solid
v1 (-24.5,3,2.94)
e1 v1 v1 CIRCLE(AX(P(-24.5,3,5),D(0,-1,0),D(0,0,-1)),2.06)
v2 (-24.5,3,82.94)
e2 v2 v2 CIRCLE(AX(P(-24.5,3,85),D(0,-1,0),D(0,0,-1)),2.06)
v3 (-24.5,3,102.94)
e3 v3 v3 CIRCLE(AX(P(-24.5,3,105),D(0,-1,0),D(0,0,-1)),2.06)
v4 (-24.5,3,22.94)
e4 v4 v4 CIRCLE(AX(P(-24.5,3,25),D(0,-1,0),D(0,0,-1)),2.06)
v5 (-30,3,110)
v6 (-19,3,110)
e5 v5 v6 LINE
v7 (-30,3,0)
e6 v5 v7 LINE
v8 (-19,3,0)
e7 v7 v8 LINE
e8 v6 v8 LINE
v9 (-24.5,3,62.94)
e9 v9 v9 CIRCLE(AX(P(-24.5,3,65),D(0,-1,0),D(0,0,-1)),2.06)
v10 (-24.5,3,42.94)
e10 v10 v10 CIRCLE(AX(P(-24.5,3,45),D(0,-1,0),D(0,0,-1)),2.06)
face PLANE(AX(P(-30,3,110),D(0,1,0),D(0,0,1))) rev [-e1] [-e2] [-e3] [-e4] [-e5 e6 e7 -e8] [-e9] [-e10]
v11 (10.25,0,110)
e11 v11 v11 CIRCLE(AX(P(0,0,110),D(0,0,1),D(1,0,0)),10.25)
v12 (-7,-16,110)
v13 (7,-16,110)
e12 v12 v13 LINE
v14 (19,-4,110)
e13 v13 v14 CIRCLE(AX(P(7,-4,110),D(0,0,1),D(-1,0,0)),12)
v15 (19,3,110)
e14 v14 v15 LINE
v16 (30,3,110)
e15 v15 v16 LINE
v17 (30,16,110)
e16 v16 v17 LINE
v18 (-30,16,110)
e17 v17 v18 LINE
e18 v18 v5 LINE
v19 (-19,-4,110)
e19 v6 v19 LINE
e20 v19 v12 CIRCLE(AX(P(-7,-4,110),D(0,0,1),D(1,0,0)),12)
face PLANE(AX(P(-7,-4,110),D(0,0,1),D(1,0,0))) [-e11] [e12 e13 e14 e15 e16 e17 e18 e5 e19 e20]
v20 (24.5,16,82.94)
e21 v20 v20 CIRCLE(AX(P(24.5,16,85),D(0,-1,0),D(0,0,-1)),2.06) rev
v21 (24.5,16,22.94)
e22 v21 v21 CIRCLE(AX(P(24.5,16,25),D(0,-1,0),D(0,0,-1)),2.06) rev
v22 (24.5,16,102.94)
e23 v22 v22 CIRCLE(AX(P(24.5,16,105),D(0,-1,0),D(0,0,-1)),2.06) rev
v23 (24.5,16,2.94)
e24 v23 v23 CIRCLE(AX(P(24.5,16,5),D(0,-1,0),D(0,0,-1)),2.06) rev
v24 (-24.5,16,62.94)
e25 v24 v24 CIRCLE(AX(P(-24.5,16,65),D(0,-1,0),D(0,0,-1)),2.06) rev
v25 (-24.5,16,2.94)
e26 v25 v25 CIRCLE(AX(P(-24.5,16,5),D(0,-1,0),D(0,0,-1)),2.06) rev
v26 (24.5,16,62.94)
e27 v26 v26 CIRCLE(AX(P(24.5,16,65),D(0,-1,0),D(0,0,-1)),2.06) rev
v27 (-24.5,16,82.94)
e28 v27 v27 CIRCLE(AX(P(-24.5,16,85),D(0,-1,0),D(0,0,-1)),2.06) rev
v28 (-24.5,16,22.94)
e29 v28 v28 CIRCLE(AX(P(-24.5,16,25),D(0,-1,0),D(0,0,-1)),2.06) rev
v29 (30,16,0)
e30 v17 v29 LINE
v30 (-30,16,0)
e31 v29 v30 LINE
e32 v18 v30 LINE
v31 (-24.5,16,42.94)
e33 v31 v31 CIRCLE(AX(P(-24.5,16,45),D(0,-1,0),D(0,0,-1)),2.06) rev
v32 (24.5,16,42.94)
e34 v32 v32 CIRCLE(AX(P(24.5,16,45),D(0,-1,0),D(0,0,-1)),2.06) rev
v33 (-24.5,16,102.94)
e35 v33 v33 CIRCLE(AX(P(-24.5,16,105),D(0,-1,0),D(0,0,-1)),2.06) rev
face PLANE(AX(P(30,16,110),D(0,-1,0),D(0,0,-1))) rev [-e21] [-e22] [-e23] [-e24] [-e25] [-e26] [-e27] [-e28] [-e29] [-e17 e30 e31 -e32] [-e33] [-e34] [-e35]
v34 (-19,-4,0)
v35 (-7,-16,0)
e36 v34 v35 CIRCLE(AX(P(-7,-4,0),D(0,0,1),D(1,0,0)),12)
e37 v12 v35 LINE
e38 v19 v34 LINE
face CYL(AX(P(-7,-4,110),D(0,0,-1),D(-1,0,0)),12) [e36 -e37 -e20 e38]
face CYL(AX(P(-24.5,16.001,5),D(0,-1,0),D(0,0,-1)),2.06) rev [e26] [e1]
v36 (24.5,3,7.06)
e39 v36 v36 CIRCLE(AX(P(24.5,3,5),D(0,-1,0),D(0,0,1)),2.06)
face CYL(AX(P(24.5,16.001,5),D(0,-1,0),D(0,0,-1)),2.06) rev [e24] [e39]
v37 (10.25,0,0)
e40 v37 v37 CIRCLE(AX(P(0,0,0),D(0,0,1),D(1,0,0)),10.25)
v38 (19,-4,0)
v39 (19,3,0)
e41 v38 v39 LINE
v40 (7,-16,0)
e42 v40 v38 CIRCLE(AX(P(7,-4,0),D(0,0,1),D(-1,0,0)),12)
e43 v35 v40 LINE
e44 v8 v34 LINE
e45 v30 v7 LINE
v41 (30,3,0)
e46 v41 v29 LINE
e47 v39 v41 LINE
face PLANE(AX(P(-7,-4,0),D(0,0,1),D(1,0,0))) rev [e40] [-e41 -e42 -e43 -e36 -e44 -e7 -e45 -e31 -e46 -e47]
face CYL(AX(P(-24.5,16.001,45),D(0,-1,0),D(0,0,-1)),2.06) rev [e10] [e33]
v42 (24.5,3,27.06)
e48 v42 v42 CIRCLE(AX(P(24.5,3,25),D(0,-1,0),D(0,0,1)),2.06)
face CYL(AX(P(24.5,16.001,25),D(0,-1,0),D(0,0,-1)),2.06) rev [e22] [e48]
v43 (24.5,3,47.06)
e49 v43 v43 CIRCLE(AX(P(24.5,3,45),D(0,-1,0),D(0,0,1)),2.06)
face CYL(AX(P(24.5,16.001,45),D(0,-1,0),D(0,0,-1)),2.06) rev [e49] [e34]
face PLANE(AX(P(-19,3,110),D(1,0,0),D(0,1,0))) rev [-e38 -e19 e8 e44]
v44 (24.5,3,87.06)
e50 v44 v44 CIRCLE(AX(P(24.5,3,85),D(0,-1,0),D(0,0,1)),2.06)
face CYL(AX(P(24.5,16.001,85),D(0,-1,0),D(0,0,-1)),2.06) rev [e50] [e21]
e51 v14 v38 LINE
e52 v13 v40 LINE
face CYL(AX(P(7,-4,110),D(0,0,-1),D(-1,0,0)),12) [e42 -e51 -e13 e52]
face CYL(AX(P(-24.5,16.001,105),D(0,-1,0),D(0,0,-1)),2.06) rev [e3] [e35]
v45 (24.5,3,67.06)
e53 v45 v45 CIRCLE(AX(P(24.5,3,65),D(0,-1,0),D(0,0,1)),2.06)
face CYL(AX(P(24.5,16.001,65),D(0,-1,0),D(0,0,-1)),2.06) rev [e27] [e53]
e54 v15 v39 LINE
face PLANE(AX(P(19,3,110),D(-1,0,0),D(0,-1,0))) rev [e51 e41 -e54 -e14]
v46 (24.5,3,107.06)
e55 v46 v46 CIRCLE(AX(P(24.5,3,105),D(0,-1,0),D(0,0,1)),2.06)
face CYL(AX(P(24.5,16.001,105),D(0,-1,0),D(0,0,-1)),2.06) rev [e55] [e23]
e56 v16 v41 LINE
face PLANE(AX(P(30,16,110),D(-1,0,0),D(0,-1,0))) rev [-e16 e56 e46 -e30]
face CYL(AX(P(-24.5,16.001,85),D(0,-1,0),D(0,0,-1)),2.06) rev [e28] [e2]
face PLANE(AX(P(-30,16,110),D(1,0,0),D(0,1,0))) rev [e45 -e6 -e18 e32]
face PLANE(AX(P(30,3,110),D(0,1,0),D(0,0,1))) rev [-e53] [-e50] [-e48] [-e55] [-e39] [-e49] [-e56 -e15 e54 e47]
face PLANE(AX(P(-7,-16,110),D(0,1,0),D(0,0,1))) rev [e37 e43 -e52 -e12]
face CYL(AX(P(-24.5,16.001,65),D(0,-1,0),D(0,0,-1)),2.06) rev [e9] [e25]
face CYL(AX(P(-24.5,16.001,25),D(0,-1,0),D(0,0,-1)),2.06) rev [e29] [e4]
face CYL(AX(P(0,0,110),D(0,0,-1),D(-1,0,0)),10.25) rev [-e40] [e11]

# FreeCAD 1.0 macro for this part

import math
import FreeCAD as App
import Part
import Sketcher

doc = App.newDocument("Part")
body = doc.addObject("PartDesign::Body", "Body")

sketch1 = body.newObject("Sketcher::SketchObject", "Sketch")
sketch1.AttachmentSupport = (doc.getObject("XY_Plane"), [""])
sketch1.MapMode = "FlatFace"
sketch1.addGeometry([
    Part.LineSegment(App.Vector(30, 16, 0), App.Vector(-30, 16, 0)),
    Part.LineSegment(App.Vector(-30, 16, 0), App.Vector(-30, 3, 0)),
    Part.LineSegment(App.Vector(-30, 3, 0), App.Vector(-19, 3, 0)),
    Part.LineSegment(App.Vector(-19, 3, 0), App.Vector(-19, -4, 0)),
    Part.ArcOfCircle(Part.Circle(App.Vector(-7, -4, 0), App.Vector(0, 0, 1), 12), math.radians(-180), math.radians(-90)),
    Part.LineSegment(App.Vector(-7, -16, 0), App.Vector(7, -16, 0)),
    Part.ArcOfCircle(Part.Circle(App.Vector(7, -4, 0), App.Vector(0, 0, 1), 12), math.radians(-90), math.radians(0)),
    Part.LineSegment(App.Vector(19, -4, 0), App.Vector(19, 3, 0)),
    Part.LineSegment(App.Vector(19, 3, 0), App.Vector(30, 3, 0)),
    Part.LineSegment(App.Vector(30, 3, 0), App.Vector(30, 16, 0)),
    Part.Circle(App.Vector(0, 0, 0), App.Vector(0, 0, 1), 10.25),
], False)
sketch1.addConstraint([
    Sketcher.Constraint("Coincident", 0, 2, 1, 1),
    Sketcher.Constraint("Coincident", 1, 2, 2, 1),
    Sketcher.Constraint("Coincident", 2, 2, 3, 1),
    Sketcher.Constraint("Tangent", 3, 2, 4, 1),
    Sketcher.Constraint("Tangent", 4, 2, 5, 1),
    Sketcher.Constraint("Tangent", 5, 2, 6, 1),
    Sketcher.Constraint("Tangent", 6, 2, 7, 1),
    Sketcher.Constraint("Coincident", 7, 2, 8, 1),
    Sketcher.Constraint("Coincident", 8, 2, 9, 1),
    Sketcher.Constraint("Coincident", 9, 2, 0, 1),
    Sketcher.Constraint("Horizontal", 0),
    Sketcher.Constraint("Vertical", 1),
    Sketcher.Constraint("Horizontal", 2),
    Sketcher.Constraint("Vertical", 3),
    Sketcher.Constraint("Horizontal", 5),
    Sketcher.Constraint("Vertical", 7),
    Sketcher.Constraint("Horizontal", 8),
    Sketcher.Constraint("Vertical", 9),
    Sketcher.Constraint("Coincident", 10, 3, -1, 1),
    Sketcher.Constraint("Equal", 4, 6),
    Sketcher.Constraint("Symmetric", 2, 2, 7, 2, -2),
    Sketcher.Constraint("Equal", 2, 8),
    Sketcher.Constraint("Radius", 4, 12.0),
    Sketcher.Constraint("Diameter", 10, 20.5),
    Sketcher.Constraint("DistanceX", 0, 2, 0, 1, 60.0),
    Sketcher.Constraint("DistanceX", 2, 1, 2, 2, 11.0),
    Sketcher.Constraint("DistanceY", 1, 2, 1, 1, 13.0),
    Sketcher.Constraint("DistanceY", 3, 2, 3, 1, 7.0),
    Sketcher.Constraint("DistanceY", 4, 3, -1, 1, 4.0),
])
pad1 = body.newObject("PartDesign::Pad", "Pad")
pad1.Profile = sketch1
pad1.Length = 110

sketch2 = body.newObject("Sketcher::SketchObject", "Sketch001")
sketch2.AttachmentSupport = (doc.getObject("XZ_Plane"), [""])
sketch2.MapMode = "FlatFace"
sketch2.AttachmentOffset = App.Placement(App.Vector(0, 0, -3), App.Rotation())
sketch2.addGeometry(Part.Circle(App.Vector(-24.5, 105, 0), App.Vector(0, 0, 1), 2.06), False)
sketch2.addConstraint([
    Sketcher.Constraint("Diameter", 0, 4.12),
    Sketcher.Constraint("DistanceY", -1, 1, 0, 3, 105.0),
    Sketcher.Constraint("DistanceX", 0, 3, -1, 1, 24.5),
])
pocket1 = body.newObject("PartDesign::Pocket", "Pocket")
pocket1.Profile = sketch2
pocket1.Type = "UpToFirst"

sketch3 = body.newObject("Sketcher::SketchObject", "Sketch002")
sketch3.AttachmentSupport = (doc.getObject("XZ_Plane"), [""])
sketch3.MapMode = "FlatFace"
sketch3.AttachmentOffset = App.Placement(App.Vector(0, 0, -3), App.Rotation())
sketch3.addGeometry(Part.Circle(App.Vector(-24.5, 85, 0), App.Vector(0, 0, 1), 2.06), False)
sketch3.addConstraint([
    Sketcher.Constraint("Diameter", 0, 4.12),
    Sketcher.Constraint("DistanceY", -1, 1, 0, 3, 85.0),
    Sketcher.Constraint("DistanceX", 0, 3, -1, 1, 24.5),
])
pocket2 = body.newObject("PartDesign::Pocket", "Pocket001")
pocket2.Profile = sketch3
pocket2.Type = "UpToFirst"

sketch4 = body.newObject("Sketcher::SketchObject", "Sketch003")
sketch4.AttachmentSupport = (doc.getObject("XZ_Plane"), [""])
sketch4.MapMode = "FlatFace"
sketch4.AttachmentOffset = App.Placement(App.Vector(0, 0, -3), App.Rotation())
sketch4.addGeometry(Part.Circle(App.Vector(-24.5, 65, 0), App.Vector(0, 0, 1), 2.06), False)
sketch4.addConstraint([
    Sketcher.Constraint("Diameter", 0, 4.12),
    Sketcher.Constraint("DistanceY", -1, 1, 0, 3, 65.0),
    Sketcher.Constraint("DistanceX", 0, 3, -1, 1, 24.5),
])
pocket3 = body.newObject("PartDesign::Pocket", "Pocket002")
pocket3.Profile = sketch4
pocket3.Type = "UpToFirst"

sketch5 = body.newObject("Sketcher::SketchObject", "Sketch004")
sketch5.AttachmentSupport = (doc.getObject("XZ_Plane"), [""])
sketch5.MapMode = "FlatFace"
sketch5.AttachmentOffset = App.Placement(App.Vector(0, 0, -3), App.Rotation())
sketch5.addGeometry(Part.Circle(App.Vector(-24.5, 45, 0), App.Vector(0, 0, 1), 2.06), False)
sketch5.addConstraint([
    Sketcher.Constraint("Diameter", 0, 4.12),
    Sketcher.Constraint("DistanceY", -1, 1, 0, 3, 45.0),
    Sketcher.Constraint("DistanceX", 0, 3, -1, 1, 24.5),
])
pocket4 = body.newObject("PartDesign::Pocket", "Pocket003")
pocket4.Profile = sketch5
pocket4.Type = "UpToFirst"

sketch6 = body.newObject("Sketcher::SketchObject", "Sketch005")
sketch6.AttachmentSupport = (doc.getObject("XZ_Plane"), [""])
sketch6.MapMode = "FlatFace"
sketch6.AttachmentOffset = App.Placement(App.Vector(0, 0, -3), App.Rotation())
sketch6.addGeometry(Part.Circle(App.Vector(-24.5, 25, 0), App.Vector(0, 0, 1), 2.06), False)
sketch6.addConstraint([
    Sketcher.Constraint("Diameter", 0, 4.12),
    Sketcher.Constraint("DistanceY", -1, 1, 0, 3, 25.0),
    Sketcher.Constraint("DistanceX", 0, 3, -1, 1, 24.5),
])
pocket5 = body.newObject("PartDesign::Pocket", "Pocket004")
pocket5.Profile = sketch6
pocket5.Type = "UpToFirst"

sketch7 = body.newObject("Sketcher::SketchObject", "Sketch006")
sketch7.AttachmentSupport = (doc.getObject("XZ_Plane"), [""])
sketch7.MapMode = "FlatFace"
sketch7.AttachmentOffset = App.Placement(App.Vector(0, 0, -3), App.Rotation())
sketch7.addGeometry(Part.Circle(App.Vector(-24.5, 5, 0), App.Vector(0, 0, 1), 2.06), False)
sketch7.addConstraint([
    Sketcher.Constraint("Diameter", 0, 4.12),
    Sketcher.Constraint("DistanceY", -1, 1, 0, 3, 5.0),
    Sketcher.Constraint("DistanceX", 0, 3, -1, 1, 24.5),
])
pocket6 = body.newObject("PartDesign::Pocket", "Pocket005")
pocket6.Profile = sketch7
pocket6.Type = "UpToFirst"

sketch8 = body.newObject("Sketcher::SketchObject", "Sketch007")
sketch8.AttachmentSupport = (doc.getObject("XZ_Plane"), [""])
sketch8.MapMode = "FlatFace"
sketch8.AttachmentOffset = App.Placement(App.Vector(0, 0, -3), App.Rotation())
sketch8.addGeometry(Part.Circle(App.Vector(24.5, 5, 0), App.Vector(0, 0, 1), 2.06), False)
sketch8.addConstraint([
    Sketcher.Constraint("Diameter", 0, 4.12),
    Sketcher.Constraint("DistanceY", -1, 1, 0, 3, 5.0),
    Sketcher.Constraint("DistanceX", -1, 1, 0, 3, 24.5),
])
pocket7 = body.newObject("PartDesign::Pocket", "Pocket006")
pocket7.Profile = sketch8
pocket7.Type = "UpToFirst"

sketch9 = body.newObject("Sketcher::SketchObject", "Sketch008")
sketch9.AttachmentSupport = (doc.getObject("XZ_Plane"), [""])
sketch9.MapMode = "FlatFace"
sketch9.AttachmentOffset = App.Placement(App.Vector(0, 0, -3), App.Rotation())
sketch9.addGeometry(Part.Circle(App.Vector(24.5, 25, 0), App.Vector(0, 0, 1), 2.06), False)
sketch9.addConstraint([
    Sketcher.Constraint("Diameter", 0, 4.12),
    Sketcher.Constraint("DistanceY", -1, 1, 0, 3, 25.0),
    Sketcher.Constraint("DistanceX", -1, 1, 0, 3, 24.5),
])
pocket8 = body.newObject("PartDesign::Pocket", "Pocket007")
pocket8.Profile = sketch9
pocket8.Type = "UpToFirst"

sketch10 = body.newObject("Sketcher::SketchObject", "Sketch009")
sketch10.AttachmentSupport = (doc.getObject("XZ_Plane"), [""])
sketch10.MapMode = "FlatFace"
sketch10.AttachmentOffset = App.Placement(App.Vector(0, 0, -3), App.Rotation())
sketch10.addGeometry(Part.Circle(App.Vector(24.5, 45, 0), App.Vector(0, 0, 1), 2.06), False)
sketch10.addConstraint([
    Sketcher.Constraint("Diameter", 0, 4.12),
    Sketcher.Constraint("DistanceY", -1, 1, 0, 3, 45.0),
    Sketcher.Constraint("DistanceX", -1, 1, 0, 3, 24.5),
])
pocket9 = body.newObject("PartDesign::Pocket", "Pocket008")
pocket9.Profile = sketch10
pocket9.Type = "UpToFirst"

sketch11 = body.newObject("Sketcher::SketchObject", "Sketch010")
sketch11.AttachmentSupport = (doc.getObject("XZ_Plane"), [""])
sketch11.MapMode = "FlatFace"
sketch11.AttachmentOffset = App.Placement(App.Vector(0, 0, -3), App.Rotation())
sketch11.addGeometry(Part.Circle(App.Vector(24.5, 65, 0), App.Vector(0, 0, 1), 2.06), False)
sketch11.addConstraint([
    Sketcher.Constraint("Diameter", 0, 4.12),
    Sketcher.Constraint("DistanceY", -1, 1, 0, 3, 65.0),
    Sketcher.Constraint("DistanceX", -1, 1, 0, 3, 24.5),
])
pocket10 = body.newObject("PartDesign::Pocket", "Pocket009")
pocket10.Profile = sketch11
pocket10.Type = "UpToFirst"

sketch12 = body.newObject("Sketcher::SketchObject", "Sketch011")
sketch12.AttachmentSupport = (doc.getObject("XZ_Plane"), [""])
sketch12.MapMode = "FlatFace"
sketch12.AttachmentOffset = App.Placement(App.Vector(0, 0, -3), App.Rotation())
sketch12.addGeometry(Part.Circle(App.Vector(24.5, 85, 0), App.Vector(0, 0, 1), 2.06), False)
sketch12.addConstraint([
    Sketcher.Constraint("Diameter", 0, 4.12),
    Sketcher.Constraint("DistanceY", -1, 1, 0, 3, 85.0),
    Sketcher.Constraint("DistanceX", -1, 1, 0, 3, 24.5),
])
pocket11 = body.newObject("PartDesign::Pocket", "Pocket010")
pocket11.Profile = sketch12
pocket11.Type = "UpToFirst"

sketch13 = body.newObject("Sketcher::SketchObject", "Sketch012")
sketch13.AttachmentSupport = (doc.getObject("XZ_Plane"), [""])
sketch13.MapMode = "FlatFace"
sketch13.AttachmentOffset = App.Placement(App.Vector(0, 0, -3), App.Rotation())
sketch13.addGeometry(Part.Circle(App.Vector(24.5, 105, 0), App.Vector(0, 0, 1), 2.06), False)
sketch13.addConstraint([
    Sketcher.Constraint("Diameter", 0, 4.12),
    Sketcher.Constraint("DistanceY", -1, 1, 0, 3, 105.0),
    Sketcher.Constraint("DistanceX", -1, 1, 0, 3, 24.5),
])
pocket12 = body.newObject("PartDesign::Pocket", "Pocket011")
pocket12.Profile = sketch13
pocket12.Type = "UpToFirst"

doc.recompute()
